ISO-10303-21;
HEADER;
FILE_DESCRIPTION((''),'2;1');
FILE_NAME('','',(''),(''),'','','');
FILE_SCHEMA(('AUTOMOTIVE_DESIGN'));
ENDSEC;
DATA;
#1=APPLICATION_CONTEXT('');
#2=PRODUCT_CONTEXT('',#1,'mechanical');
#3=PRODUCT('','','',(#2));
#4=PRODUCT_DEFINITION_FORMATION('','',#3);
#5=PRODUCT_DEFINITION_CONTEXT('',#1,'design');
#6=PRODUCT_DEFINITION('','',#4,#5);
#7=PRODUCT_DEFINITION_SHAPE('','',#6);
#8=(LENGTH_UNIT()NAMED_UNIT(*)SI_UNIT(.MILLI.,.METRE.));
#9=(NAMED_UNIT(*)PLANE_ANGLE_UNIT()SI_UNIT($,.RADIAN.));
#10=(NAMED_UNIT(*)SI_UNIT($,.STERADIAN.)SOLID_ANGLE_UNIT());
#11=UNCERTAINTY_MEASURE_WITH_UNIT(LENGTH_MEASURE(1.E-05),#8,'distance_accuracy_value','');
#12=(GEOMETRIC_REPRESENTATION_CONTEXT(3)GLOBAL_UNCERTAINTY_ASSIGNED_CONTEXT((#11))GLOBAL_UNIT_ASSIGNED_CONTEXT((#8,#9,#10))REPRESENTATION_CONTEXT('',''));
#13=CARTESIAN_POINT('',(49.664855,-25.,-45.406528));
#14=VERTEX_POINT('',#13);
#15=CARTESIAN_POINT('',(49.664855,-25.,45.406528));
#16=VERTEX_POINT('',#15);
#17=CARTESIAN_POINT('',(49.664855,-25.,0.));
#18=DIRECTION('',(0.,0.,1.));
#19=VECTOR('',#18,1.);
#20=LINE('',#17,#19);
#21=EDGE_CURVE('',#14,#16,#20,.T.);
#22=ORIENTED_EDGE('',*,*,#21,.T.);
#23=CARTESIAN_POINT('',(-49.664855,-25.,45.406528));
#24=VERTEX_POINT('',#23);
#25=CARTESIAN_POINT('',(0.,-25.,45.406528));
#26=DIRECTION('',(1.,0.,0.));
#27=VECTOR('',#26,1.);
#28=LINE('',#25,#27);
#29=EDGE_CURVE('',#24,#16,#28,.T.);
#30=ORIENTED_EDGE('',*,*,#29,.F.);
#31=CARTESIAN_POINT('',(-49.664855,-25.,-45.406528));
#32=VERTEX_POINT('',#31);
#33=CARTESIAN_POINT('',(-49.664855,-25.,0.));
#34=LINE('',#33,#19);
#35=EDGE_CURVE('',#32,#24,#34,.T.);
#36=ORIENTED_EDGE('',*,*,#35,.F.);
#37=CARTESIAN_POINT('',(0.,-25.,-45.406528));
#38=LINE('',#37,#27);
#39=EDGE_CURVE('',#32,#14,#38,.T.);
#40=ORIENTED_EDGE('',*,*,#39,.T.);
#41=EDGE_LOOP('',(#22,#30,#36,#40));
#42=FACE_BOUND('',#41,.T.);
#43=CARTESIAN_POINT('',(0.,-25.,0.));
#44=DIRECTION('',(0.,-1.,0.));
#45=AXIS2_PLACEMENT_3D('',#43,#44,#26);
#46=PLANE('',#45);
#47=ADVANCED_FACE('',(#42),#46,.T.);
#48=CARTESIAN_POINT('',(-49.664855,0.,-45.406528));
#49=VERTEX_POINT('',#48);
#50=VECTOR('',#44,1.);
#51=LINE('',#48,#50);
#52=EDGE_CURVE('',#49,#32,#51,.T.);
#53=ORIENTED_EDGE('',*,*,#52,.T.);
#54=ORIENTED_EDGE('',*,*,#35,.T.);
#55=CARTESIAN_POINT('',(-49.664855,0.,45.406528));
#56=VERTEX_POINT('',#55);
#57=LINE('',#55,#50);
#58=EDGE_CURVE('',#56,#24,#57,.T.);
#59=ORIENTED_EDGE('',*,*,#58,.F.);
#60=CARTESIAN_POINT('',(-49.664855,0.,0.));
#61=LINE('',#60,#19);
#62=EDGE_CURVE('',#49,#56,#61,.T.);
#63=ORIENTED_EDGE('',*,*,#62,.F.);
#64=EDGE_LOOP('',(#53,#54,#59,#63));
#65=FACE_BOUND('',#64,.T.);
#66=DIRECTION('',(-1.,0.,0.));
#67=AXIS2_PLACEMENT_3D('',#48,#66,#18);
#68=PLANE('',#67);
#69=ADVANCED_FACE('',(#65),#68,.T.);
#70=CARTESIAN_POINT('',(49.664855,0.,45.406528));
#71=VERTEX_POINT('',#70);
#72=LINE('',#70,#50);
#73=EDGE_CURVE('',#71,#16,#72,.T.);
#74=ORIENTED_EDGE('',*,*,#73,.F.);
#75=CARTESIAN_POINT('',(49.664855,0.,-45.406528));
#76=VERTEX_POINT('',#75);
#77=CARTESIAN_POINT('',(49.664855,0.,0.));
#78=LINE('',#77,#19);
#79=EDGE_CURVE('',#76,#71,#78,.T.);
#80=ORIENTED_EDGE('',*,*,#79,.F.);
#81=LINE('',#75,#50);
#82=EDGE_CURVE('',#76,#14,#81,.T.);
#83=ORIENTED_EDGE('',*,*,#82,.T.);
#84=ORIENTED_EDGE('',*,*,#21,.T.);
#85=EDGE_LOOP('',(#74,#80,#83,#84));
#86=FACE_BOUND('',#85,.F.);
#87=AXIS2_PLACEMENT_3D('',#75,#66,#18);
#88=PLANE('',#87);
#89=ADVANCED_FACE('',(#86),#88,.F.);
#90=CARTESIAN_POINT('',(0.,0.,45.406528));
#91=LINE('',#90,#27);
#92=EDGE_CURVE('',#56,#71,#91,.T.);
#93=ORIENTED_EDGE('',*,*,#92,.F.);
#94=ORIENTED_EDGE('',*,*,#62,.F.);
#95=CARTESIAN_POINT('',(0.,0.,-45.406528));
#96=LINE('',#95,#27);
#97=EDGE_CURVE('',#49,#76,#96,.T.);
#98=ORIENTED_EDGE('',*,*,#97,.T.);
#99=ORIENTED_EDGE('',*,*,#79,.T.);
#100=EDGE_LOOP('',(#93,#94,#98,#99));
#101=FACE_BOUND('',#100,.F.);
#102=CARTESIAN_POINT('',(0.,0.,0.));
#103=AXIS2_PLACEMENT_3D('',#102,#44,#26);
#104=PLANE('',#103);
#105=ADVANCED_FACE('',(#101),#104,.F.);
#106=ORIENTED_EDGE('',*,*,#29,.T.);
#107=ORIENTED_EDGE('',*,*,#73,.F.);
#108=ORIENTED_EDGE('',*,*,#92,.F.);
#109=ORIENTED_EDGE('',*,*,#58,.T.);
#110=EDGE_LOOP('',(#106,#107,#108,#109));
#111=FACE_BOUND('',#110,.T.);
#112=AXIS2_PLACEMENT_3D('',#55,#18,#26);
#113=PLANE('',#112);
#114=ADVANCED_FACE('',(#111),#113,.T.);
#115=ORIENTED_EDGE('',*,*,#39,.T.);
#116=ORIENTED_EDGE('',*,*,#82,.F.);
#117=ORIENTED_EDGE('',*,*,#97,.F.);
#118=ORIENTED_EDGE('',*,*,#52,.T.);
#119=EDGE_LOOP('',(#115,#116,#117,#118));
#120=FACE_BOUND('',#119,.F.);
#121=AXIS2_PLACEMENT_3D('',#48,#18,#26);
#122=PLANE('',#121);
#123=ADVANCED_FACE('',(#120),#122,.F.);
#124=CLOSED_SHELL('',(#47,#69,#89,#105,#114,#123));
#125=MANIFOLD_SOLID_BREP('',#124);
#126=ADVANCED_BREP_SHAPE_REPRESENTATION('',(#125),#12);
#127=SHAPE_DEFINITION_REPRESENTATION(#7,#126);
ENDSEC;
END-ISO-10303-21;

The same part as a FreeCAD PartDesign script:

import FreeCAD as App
import Part
import Sketcher

V = App.Vector
Q = App.Units.Quantity


def add_polygon(sketch, points):
    """Adds a closed chain of lines whose ends are joined by coincident constraints."""
    first, n = sketch.GeometryCount, len(points)
    for a, b in zip(points, points[1:] + points[:1]):
        sketch.addGeometry(Part.LineSegment(App.Vector(*a, 0), App.Vector(*b, 0)), False)
    for i in range(n):
        sketch.addConstraint(Sketcher.Constraint("Coincident", first + i, 2, first + (i + 1) % n, 1))

doc = App.newDocument("Part")
body = doc.addObject("PartDesign::Body", "Body")

# Sketch on XZ plane
sketch1 = body.newObject("Sketcher::SketchObject", "Sketch")
sketch1.AttachmentSupport = (doc.getObject("XZ_Plane"), [""])
sketch1.MapMode = "FlatFace"
add_polygon(sketch1, [(-49.664855, 45.406528), (-49.664855, -45.406528), (49.664855, -45.406528), (49.664855, 45.406528)])  # lines 0-3
sketch1.addConstraint([
    Sketcher.Constraint("Vertical", 0),
    Sketcher.Constraint("Horizontal", 1),
    Sketcher.Constraint("Vertical", 2),
    Sketcher.Constraint("Horizontal", 3),
    Sketcher.Constraint("Symmetric", 0, 2, 2, 2, -1, 1),
    Sketcher.Constraint("DistanceX", 1, 1, 1, 2, Q("99.32971 mm")),
    Sketcher.Constraint("DistanceY", 0, 2, 0, 1, Q("90.813056 mm")),
])
pad1 = body.newObject("PartDesign::Pad", "Pad")
pad1.Profile = sketch1
pad1.Length = 25

doc.recompute()
